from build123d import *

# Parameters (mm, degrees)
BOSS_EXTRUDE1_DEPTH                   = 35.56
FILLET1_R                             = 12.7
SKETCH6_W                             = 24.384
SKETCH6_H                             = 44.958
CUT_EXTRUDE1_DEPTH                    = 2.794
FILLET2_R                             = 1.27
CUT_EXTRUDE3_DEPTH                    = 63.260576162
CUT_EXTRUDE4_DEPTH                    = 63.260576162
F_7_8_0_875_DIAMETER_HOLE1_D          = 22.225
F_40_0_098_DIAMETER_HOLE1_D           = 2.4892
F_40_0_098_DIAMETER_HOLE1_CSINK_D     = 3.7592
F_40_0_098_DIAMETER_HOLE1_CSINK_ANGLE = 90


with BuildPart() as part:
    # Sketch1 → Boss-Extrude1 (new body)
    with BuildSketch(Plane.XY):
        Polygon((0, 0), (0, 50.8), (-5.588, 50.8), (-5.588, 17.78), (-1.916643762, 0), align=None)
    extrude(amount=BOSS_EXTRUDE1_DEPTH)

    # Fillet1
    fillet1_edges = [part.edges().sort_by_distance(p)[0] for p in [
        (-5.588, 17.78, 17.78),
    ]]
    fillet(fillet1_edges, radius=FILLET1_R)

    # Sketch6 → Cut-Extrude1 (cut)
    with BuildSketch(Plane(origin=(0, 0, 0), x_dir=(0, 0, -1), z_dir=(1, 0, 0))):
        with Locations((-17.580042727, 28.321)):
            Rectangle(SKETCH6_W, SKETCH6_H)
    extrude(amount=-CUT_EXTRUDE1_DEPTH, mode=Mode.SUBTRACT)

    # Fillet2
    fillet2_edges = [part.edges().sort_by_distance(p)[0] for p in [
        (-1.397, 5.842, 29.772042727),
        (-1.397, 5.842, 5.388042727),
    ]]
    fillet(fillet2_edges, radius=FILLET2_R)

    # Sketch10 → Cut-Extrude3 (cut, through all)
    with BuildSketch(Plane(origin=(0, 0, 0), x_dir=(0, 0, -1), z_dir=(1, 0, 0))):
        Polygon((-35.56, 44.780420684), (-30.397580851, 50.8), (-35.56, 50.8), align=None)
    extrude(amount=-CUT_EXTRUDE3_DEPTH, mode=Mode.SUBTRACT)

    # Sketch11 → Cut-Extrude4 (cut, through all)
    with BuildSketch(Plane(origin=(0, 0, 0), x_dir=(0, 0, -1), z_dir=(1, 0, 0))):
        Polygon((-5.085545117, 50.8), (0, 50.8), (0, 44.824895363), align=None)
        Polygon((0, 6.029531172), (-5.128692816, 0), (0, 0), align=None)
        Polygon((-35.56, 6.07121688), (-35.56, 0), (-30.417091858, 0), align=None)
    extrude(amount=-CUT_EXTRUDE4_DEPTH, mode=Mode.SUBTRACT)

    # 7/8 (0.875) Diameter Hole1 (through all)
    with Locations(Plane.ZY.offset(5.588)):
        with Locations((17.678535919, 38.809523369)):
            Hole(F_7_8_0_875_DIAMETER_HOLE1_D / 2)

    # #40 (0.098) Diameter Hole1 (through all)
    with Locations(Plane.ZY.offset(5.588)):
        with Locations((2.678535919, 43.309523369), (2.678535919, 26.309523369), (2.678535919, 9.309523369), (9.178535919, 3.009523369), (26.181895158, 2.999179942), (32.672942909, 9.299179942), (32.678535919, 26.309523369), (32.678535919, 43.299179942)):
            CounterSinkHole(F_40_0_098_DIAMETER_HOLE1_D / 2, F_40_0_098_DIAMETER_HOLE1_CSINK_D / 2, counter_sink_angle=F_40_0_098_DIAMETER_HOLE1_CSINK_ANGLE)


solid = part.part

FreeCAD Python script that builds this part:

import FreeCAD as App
import Part
import Sketcher
from FreeCAD import Vector
Q = App.Units.Quantity


def edges_at(feature, points):
    """Names of the edges that pass closest to the given points."""
    edges = feature.Shape.Edges
    near = lambda p: min(range(len(edges)), key=lambda i: edges[i].distToShape(Part.Vertex(*p))[0])
    return sorted({f"Edge{near(p) + 1}" for p in points})

doc = App.newDocument("Part")
body = doc.addObject("PartDesign::Body", "Body")

sketch1 = body.newObject("Sketcher::SketchObject", "Sketch")
sketch1.AttachmentSupport = (doc.getObject("XY_Plane"), [""])
sketch1.MapMode = "FlatFace"
sketch1.addGeometry([
    Part.LineSegment(Vector(0, 0, 0), Vector(0, 50.8, 0)),
    Part.LineSegment(Vector(0, 50.8, 0), Vector(-5.588, 50.8, 0)),
    Part.LineSegment(Vector(-5.588, 50.8, 0), Vector(-5.588, 17.78, 0)),
    Part.LineSegment(Vector(-5.588, 17.78, 0), Vector(-1.916644, 0, 0)),
    Part.LineSegment(Vector(-1.916644, 0, 0), Vector(0, 0, 0)),
], False)
sketch1.addConstraint([
    Sketcher.Constraint("Coincident", 0, 2, 1, 1),
    Sketcher.Constraint("Coincident", 1, 2, 2, 1),
    Sketcher.Constraint("Coincident", 2, 2, 3, 1),
    Sketcher.Constraint("Coincident", 3, 2, 4, 1),
    Sketcher.Constraint("Coincident", 4, 2, 0, 1),
    Sketcher.Constraint("Vertical", 0),
    Sketcher.Constraint("Horizontal", 1),
    Sketcher.Constraint("Vertical", 2),
    Sketcher.Constraint("Horizontal", 4),
    Sketcher.Constraint("Coincident", 4, 2, -1, 1),
    Sketcher.Constraint("DistanceY", 0, 1, 0, 2, Q("2 in")),
    Sketcher.Constraint("DistanceY", 2, 2, 2, 1, Q("1.3 in")),
    Sketcher.Constraint("DistanceX", 1, 2, 1, 1, Q("0.22 in")),
    Sketcher.Constraint("Distance", 3, Q("18.155089 mm")),
])
pad1 = body.newObject("PartDesign::Pad", "Pad")
pad1.Profile = sketch1
pad1.Length = Q("1.4 in")
doc.recompute()

fillet = body.newObject("PartDesign::Fillet", "Fillet")
fillet.Base = (pad1, edges_at(pad1, [(-5.588, 17.78, 17.78)]))
fillet.Radius = Q("0.5 in")

sketch2 = body.newObject("Sketcher::SketchObject", "Sketch001")
sketch2.AttachmentSupport = (doc.getObject("YZ_Plane"), [""])
sketch2.MapMode = "FlatFace"
sketch2.addGeometry([
    Part.LineSegment(Vector(50.8, 29.772043, 0), Vector(5.842, 29.772043, 0)),
    Part.LineSegment(Vector(5.842, 29.772043, 0), Vector(5.842, 5.388043, 0)),
    Part.LineSegment(Vector(5.842, 5.388043, 0), Vector(50.8, 5.388043, 0)),
    Part.LineSegment(Vector(50.8, 5.388043, 0), Vector(50.8, 29.772043, 0)),
], False)
sketch2.addConstraint([
    Sketcher.Constraint("Coincident", 0, 2, 1, 1),
    Sketcher.Constraint("Coincident", 1, 2, 2, 1),
    Sketcher.Constraint("Coincident", 2, 2, 3, 1),
    Sketcher.Constraint("Coincident", 3, 2, 0, 1),
    Sketcher.Constraint("Horizontal", 0),
    Sketcher.Constraint("Vertical", 1),
    Sketcher.Constraint("Horizontal", 2),
    Sketcher.Constraint("Vertical", 3),
    Sketcher.Constraint("DistanceX", -1, 1, 2, 2, Q("2 in")),
    Sketcher.Constraint("DistanceX", 0, 2, 0, 1, Q("1.77 in")),
    Sketcher.Constraint("DistanceY", 1, 2, 1, 1, Q("0.96 in")),
    Sketcher.Constraint("DistanceY", -1, 1, 0, 2, Q("29.772043 mm")),
])
pocket1 = body.newObject("PartDesign::Pocket", "Pocket")
pocket1.Profile = sketch2
pocket1.Length = Q("0.11 in")
doc.recompute()

fillet2 = body.newObject("PartDesign::Fillet", "Fillet001")
fillet2.Base = (pocket1, edges_at(pocket1, [(-1.397, 5.842, 29.772), (-1.397, 5.842, 5.388)]))
fillet2.Radius = Q("0.05 in")

sketch3 = body.newObject("Sketcher::SketchObject", "Sketch002")
sketch3.AttachmentSupport = (doc.getObject("YZ_Plane"), [""])
sketch3.MapMode = "FlatFace"
sketch3.addGeometry([
    Part.LineSegment(Vector(44.780421, 35.56, 0), Vector(50.8, 30.397581, 0)),
    Part.LineSegment(Vector(50.8, 30.397581, 0), Vector(50.8, 35.56, 0)),
    Part.LineSegment(Vector(50.8, 35.56, 0), Vector(44.780421, 35.56, 0)),
], False)
sketch3.addConstraint([
    Sketcher.Constraint("Coincident", 0, 2, 1, 1),
    Sketcher.Constraint("Coincident", 1, 2, 2, 1),
    Sketcher.Constraint("Coincident", 2, 2, 0, 1),
    Sketcher.Constraint("Vertical", 1),
    Sketcher.Constraint("Horizontal", 2),
    Sketcher.Constraint("DistanceX", -1, 1, 0, 2, Q("2 in")),
    Sketcher.Constraint("DistanceY", -1, 1, 1, 2, Q("1.4 in")),
    Sketcher.Constraint("DistanceX", 2, 2, 2, 1, Q("6.019579 mm")),
    Sketcher.Constraint("DistanceY", 1, 1, 1, 2, Q("5.162419 mm")),
])
pocket2 = body.newObject("PartDesign::Pocket", "Pocket001")
pocket2.Profile = sketch3
pocket2.Type = "ThroughAll"

sketch4 = body.newObject("Sketcher::SketchObject", "Sketch003")
sketch4.AttachmentSupport = (doc.getObject("YZ_Plane"), [""])
sketch4.MapMode = "FlatFace"
sketch4.addGeometry([
    Part.LineSegment(Vector(50.8, 0, 0), Vector(50.8, 5.085545, 0)),
    Part.LineSegment(Vector(50.8, 5.085545, 0), Vector(44.824895, 0, 0)),
    Part.LineSegment(Vector(44.824895, 0, 0), Vector(50.8, 0, 0)),
    Part.LineSegment(Vector(6.029531, 0, 0), Vector(0, 5.128693, 0)),
    Part.LineSegment(Vector(0, 5.128693, 0), Vector(0, 0, 0)),
    Part.LineSegment(Vector(0, 0, 0), Vector(6.029531, 0, 0)),
    Part.LineSegment(Vector(6.071217, 35.56, 0), Vector(0, 35.56, 0)),
    Part.LineSegment(Vector(0, 35.56, 0), Vector(0, 30.417092, 0)),
    Part.LineSegment(Vector(0, 30.417092, 0), Vector(6.071217, 35.56, 0)),
], False)
sketch4.addConstraint([
    Sketcher.Constraint("Coincident", 0, 2, 1, 1),
    Sketcher.Constraint("Coincident", 1, 2, 2, 1),
    Sketcher.Constraint("Coincident", 2, 2, 0, 1),
    Sketcher.Constraint("Coincident", 3, 2, 4, 1),
    Sketcher.Constraint("Coincident", 4, 2, 5, 1),
    Sketcher.Constraint("Coincident", 5, 2, 3, 1),
    Sketcher.Constraint("Coincident", 6, 2, 7, 1),
    Sketcher.Constraint("Coincident", 7, 2, 8, 1),
    Sketcher.Constraint("Coincident", 8, 2, 6, 1),
    Sketcher.Constraint("Vertical", 0),
    Sketcher.Constraint("Horizontal", 2),
    Sketcher.Constraint("Vertical", 4),
    Sketcher.Constraint("Horizontal", 5),
    Sketcher.Constraint("Horizontal", 6),
    Sketcher.Constraint("Vertical", 7),
    Sketcher.Constraint("Coincident", 4, 2, -1, 1),
    Sketcher.Constraint("PointOnObject", 1, 2, -1),
    Sketcher.Constraint("PointOnObject", 6, 2, -2),
    Sketcher.Constraint("DistanceX", -1, 1, 0, 2, Q("2 in")),
    Sketcher.Constraint("DistanceY", -1, 1, 6, 2, Q("1.4 in")),
    Sketcher.Constraint("DistanceX", 5, 1, 5, 2, Q("6.029531 mm")),
    Sketcher.Constraint("DistanceY", 7, 2, 7, 1, Q("5.142908 mm")),
    Sketcher.Constraint("DistanceY", 3, 2, 7, 2, Q("25.288399 mm")),
    Sketcher.Constraint("DistanceX", 2, 1, 2, 2, Q("5.975105 mm")),
    Sketcher.Constraint("DistanceX", 6, 2, 6, 1, Q("6.071217 mm")),
    Sketcher.Constraint("DistanceY", 0, 1, 0, 2, Q("5.085545 mm")),
])
pocket3 = body.newObject("PartDesign::Pocket", "Pocket002")
pocket3.Profile = sketch4
pocket3.Type = "ThroughAll"

sketch5 = body.newObject("Sketcher::SketchObject", "Sketch004")
sketch5.AttachmentSupport = (doc.getObject("YZ_Plane"), [""])
sketch5.MapMode = "FlatFace"
sketch5.AttachmentOffset = App.Placement(Vector(0, 0, -0.22 * 25.4), App.Rotation())
sketch5.addGeometry(Part.Circle(Vector(38.809523, 17.678536, 0), Vector(0, 0, 1), 11.1125), False)
sketch5.addConstraint([
    Sketcher.Constraint("Diameter", 0, Q("0.875 in")),
    Sketcher.Constraint("DistanceX", -1, 1, 0, 3, Q("38.809523 mm")),
    Sketcher.Constraint("DistanceY", -1, 1, 0, 3, Q("17.678536 mm")),
])
doc.recompute()
hole = body.newObject("PartDesign::Hole", "Hole")
hole.Profile = sketch5
hole.ThreadType = "None"
hole.Diameter = Q("0.875 in")
hole.DepthType = "ThroughAll"
hole.Reversed = True

sketch6 = body.newObject("Sketcher::SketchObject", "Sketch005")
sketch6.AttachmentSupport = (doc.getObject("YZ_Plane"), [""])
sketch6.MapMode = "FlatFace"
sketch6.AttachmentOffset = App.Placement(Vector(0, 0, -0.22 * 25.4), App.Rotation())
sketch6.addGeometry([
    Part.Circle(Vector(43.309523, 2.678536, 0), Vector(0, 0, 1), 1.2446),
    Part.Circle(Vector(26.309523, 2.678536, 0), Vector(0, 0, 1), 1.2446),
    Part.Circle(Vector(9.309523, 2.678536, 0), Vector(0, 0, 1), 1.2446),
    Part.Circle(Vector(3.009523, 9.178536, 0), Vector(0, 0, 1), 1.2446),
    Part.Circle(Vector(2.99918, 26.181895, 0), Vector(0, 0, 1), 1.2446),
    Part.Circle(Vector(9.29918, 32.672943, 0), Vector(0, 0, 1), 1.2446),
    Part.Circle(Vector(26.309523, 32.678536, 0), Vector(0, 0, 1), 1.2446),
    Part.Circle(Vector(43.29918, 32.678536, 0), Vector(0, 0, 1), 1.2446),
], False)
sketch6.addConstraint([
    Sketcher.Constraint("Equal", 0, 1),
    Sketcher.Constraint("Equal", 1, 2),
    Sketcher.Constraint("Equal", 2, 3),
    Sketcher.Constraint("Equal", 3, 4),
    Sketcher.Constraint("Equal", 4, 5),
    Sketcher.Constraint("Equal", 5, 6),
    Sketcher.Constraint("Equal", 6, 7),
    Sketcher.Constraint("Horizontal", 0, 3, 1, 3),
    Sketcher.Constraint("Horizontal", 1, 3, 2, 3),
    Sketcher.Constraint("Horizontal", 6, 3, 7, 3),
    Sketcher.Constraint("Vertical", 1, 3, 6, 3),
    Sketcher.Constraint("Diameter", 0, Q("0.098 in")),
    Sketcher.Constraint("DistanceX", 1, 3, 0, 3, Q("17 mm")),
    Sketcher.Constraint("DistanceX", 2, 3, 1, 3, Q("17 mm")),
    Sketcher.Constraint("DistanceX", 3, 3, 2, 3, Q("6.3 mm")),
    Sketcher.Constraint("DistanceY", 2, 3, 3, 3, Q("6.5 mm")),
    Sketcher.Constraint("DistanceX", 4, 3, 5, 3, Q("6.3 mm")),
    Sketcher.Constraint("DistanceY", 1, 3, 6, 3, Q("30 mm")),
    Sketcher.Constraint("DistanceX", 5, 3, 7, 3, Q("34 mm")),
    Sketcher.Constraint("DistanceX", -1, 1, 4, 3, Q("2.99918 mm")),
    Sketcher.Constraint("DistanceY", 3, 3, 4, 3, Q("17.003359 mm")),
    Sketcher.Constraint("DistanceX", -1, 1, 0, 3, Q("43.309523 mm")),
    Sketcher.Constraint("DistanceY", -1, 1, 0, 3, Q("2.678536 mm")),
    Sketcher.Constraint("DistanceY", -1, 1, 5, 3, Q("32.672943 mm")),
])
doc.recompute()
hole2 = body.newObject("PartDesign::Hole", "Hole001")
hole2.Profile = sketch6
hole2.ThreadType = "None"
hole2.Diameter = Q("0.098 in")
hole2.DepthType = "ThroughAll"
hole2.HoleCutType = "Countersink"
hole2.HoleCutDiameter = Q("0.148 in")
hole2.HoleCutCountersinkAngle = 90
hole2.Reversed = True

doc.recompute()
